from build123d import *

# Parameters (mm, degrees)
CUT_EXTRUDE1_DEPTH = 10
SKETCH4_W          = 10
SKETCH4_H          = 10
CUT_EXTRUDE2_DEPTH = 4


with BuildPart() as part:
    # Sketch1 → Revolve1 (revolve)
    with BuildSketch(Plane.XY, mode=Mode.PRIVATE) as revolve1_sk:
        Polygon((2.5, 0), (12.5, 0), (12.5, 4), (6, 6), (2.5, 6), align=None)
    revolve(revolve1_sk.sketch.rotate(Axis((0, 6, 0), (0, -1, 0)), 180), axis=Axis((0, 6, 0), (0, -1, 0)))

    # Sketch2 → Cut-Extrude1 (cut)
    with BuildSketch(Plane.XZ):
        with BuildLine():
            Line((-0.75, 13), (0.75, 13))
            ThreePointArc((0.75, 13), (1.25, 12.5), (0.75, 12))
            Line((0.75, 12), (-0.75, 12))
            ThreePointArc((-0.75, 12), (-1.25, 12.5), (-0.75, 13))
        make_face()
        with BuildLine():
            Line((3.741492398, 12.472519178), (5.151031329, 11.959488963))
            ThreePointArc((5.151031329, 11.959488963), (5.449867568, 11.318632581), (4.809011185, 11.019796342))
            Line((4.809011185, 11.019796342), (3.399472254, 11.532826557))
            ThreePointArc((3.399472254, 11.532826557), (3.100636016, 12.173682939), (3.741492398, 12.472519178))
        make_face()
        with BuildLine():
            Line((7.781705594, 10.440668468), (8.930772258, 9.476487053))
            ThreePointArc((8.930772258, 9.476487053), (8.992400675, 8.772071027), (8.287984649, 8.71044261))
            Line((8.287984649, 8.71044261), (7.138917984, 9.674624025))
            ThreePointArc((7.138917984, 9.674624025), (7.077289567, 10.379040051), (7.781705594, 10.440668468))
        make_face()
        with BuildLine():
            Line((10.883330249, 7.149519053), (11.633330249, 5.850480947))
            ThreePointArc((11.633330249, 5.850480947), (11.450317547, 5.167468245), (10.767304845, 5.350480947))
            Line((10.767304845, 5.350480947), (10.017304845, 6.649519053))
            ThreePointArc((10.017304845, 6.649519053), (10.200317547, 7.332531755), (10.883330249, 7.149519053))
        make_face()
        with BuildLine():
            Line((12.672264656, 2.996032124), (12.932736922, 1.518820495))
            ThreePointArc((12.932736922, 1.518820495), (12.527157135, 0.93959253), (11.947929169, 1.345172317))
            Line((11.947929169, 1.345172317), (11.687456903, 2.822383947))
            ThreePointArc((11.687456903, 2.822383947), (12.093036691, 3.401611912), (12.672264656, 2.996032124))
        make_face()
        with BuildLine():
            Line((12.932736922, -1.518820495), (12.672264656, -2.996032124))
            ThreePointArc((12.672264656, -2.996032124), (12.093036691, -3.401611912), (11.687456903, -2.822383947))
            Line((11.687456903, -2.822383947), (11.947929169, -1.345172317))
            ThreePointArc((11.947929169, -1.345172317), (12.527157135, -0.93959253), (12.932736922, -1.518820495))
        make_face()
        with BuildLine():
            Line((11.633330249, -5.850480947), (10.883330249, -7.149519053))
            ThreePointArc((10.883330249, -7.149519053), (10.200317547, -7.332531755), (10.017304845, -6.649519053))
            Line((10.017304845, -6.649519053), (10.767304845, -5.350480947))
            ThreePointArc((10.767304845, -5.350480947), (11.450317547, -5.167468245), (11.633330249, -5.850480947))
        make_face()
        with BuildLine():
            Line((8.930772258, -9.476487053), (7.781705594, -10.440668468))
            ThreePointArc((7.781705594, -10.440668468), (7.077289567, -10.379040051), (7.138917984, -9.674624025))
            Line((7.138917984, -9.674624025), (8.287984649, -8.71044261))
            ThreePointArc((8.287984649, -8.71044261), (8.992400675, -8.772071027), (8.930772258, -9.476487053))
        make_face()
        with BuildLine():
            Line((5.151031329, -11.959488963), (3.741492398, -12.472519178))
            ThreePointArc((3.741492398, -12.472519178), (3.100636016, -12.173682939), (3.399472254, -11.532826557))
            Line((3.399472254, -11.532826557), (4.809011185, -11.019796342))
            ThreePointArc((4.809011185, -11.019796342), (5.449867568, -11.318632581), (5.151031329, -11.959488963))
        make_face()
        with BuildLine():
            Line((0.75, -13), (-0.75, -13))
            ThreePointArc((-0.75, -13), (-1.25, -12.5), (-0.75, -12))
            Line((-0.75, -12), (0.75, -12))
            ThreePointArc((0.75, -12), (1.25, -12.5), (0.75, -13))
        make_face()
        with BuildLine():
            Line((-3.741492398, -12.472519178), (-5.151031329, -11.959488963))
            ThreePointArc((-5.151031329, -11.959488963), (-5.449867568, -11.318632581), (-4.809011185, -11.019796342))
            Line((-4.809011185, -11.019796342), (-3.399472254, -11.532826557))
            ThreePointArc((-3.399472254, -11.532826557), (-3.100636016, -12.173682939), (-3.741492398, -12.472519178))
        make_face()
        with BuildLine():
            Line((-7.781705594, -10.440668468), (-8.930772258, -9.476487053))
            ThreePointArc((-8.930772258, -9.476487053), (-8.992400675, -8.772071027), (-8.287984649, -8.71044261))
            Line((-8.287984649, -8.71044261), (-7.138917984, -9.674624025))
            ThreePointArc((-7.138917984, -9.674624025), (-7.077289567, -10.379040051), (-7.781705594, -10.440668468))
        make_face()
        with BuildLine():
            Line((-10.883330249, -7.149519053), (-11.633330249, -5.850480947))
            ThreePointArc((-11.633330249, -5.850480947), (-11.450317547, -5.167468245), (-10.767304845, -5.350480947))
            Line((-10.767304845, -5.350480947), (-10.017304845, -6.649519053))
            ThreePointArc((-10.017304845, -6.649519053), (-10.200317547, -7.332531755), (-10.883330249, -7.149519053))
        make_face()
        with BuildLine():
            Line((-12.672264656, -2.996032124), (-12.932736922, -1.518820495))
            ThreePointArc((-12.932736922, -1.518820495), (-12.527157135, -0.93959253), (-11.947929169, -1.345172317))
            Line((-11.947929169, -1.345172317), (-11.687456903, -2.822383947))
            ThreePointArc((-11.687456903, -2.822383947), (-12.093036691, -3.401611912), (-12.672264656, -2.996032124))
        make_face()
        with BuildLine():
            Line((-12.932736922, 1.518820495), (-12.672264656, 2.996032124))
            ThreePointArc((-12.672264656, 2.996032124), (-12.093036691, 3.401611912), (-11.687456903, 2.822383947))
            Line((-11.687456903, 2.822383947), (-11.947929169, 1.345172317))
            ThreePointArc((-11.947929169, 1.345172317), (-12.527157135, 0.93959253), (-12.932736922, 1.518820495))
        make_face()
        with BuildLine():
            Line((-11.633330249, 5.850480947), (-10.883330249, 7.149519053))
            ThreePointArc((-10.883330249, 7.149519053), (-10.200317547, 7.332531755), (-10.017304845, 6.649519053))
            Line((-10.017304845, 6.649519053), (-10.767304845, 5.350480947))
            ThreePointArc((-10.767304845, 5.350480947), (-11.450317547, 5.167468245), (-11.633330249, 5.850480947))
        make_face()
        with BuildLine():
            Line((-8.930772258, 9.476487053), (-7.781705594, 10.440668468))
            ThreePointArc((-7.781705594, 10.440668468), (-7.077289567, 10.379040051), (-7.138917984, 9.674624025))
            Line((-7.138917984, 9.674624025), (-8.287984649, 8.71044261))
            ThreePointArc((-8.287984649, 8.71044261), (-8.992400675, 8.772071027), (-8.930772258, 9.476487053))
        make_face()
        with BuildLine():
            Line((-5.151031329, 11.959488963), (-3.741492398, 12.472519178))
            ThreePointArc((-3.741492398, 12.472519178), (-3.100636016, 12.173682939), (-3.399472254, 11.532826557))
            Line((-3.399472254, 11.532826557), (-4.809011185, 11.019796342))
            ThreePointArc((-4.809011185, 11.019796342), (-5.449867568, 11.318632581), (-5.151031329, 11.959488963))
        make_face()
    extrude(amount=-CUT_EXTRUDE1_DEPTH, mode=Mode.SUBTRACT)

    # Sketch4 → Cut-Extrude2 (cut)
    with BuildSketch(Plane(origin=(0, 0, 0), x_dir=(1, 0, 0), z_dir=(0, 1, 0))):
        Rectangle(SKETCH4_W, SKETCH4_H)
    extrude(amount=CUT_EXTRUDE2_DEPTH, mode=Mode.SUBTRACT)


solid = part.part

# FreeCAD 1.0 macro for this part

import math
import FreeCAD as App
import Part
import Sketcher
Q = App.Units.Quantity


def add_polygon(sketch, points):
    """Adds a closed chain of lines whose ends are joined by coincident constraints."""
    first, n = sketch.GeometryCount, len(points)
    for a, b in zip(points, points[1:] + points[:1]):
        sketch.addGeometry(Part.LineSegment(App.Vector(*a, 0), App.Vector(*b, 0)), False)
    for i in range(n):
        sketch.addConstraint(Sketcher.Constraint("Coincident", first + i, 2, first + (i + 1) % n, 1))

doc = App.newDocument("Part")
body = doc.addObject("PartDesign::Body", "Body")

sketch1 = body.newObject("Sketcher::SketchObject", "Sketch")
sketch1.AttachmentSupport = (doc.getObject("XY_Plane"), [""])
sketch1.MapMode = "FlatFace"
add_polygon(sketch1, [(2.5, 0), (12.5, 0), (12.5, 4), (6, 6), (2.5, 6)])
sketch1.addConstraint([
    Sketcher.Constraint("Horizontal", 0),
    Sketcher.Constraint("Vertical", 1),
    Sketcher.Constraint("Horizontal", 3),
    Sketcher.Constraint("Vertical", 4),
    Sketcher.Constraint("PointOnObject", 0, 2, -1),
    Sketcher.Constraint("DistanceX", 0, 1, 0, 2, 10.0),
    Sketcher.Constraint("DistanceY", 1, 1, 1, 2, 4.0),
    Sketcher.Constraint("DistanceY", 4, 2, 4, 1, 6.0),
    Sketcher.Constraint("DistanceX", 3, 2, 3, 1, 3.5),
    Sketcher.Constraint("DistanceX", -1, 1, 2, 2, 6.0),
])
revolution = body.newObject("PartDesign::Revolution", "Revolution")
revolution.Profile = sketch1
revolution.ReferenceAxis = (sketch1, ["V_Axis"])
revolution.Angle = 360

sketch2 = body.newObject("Sketcher::SketchObject", "Sketch001")
sketch2.AttachmentSupport = (doc.getObject("XZ_Plane"), [""])
sketch2.MapMode = "FlatFace"
sketch2.addGeometry([
    Part.LineSegment(App.Vector(0.8, 13, 0), App.Vector(-0.8, 13, 0)),
    Part.ArcOfCircle(Part.Circle(App.Vector(-0.8, 12.5, 0), App.Vector(0, 0, 1), 0.5), math.radians(90), math.radians(270)),
    Part.LineSegment(App.Vector(-0.8, 12, 0), App.Vector(0.8, 12, 0)),
    Part.ArcOfCircle(Part.Circle(App.Vector(0.8, 12.5, 0), App.Vector(0, 0, 1), 0.5), math.radians(-90), math.radians(90)),
    Part.LineSegment(App.Vector(5.2, 12, 0), App.Vector(3.7, 12.5, 0)),
    Part.ArcOfCircle(Part.Circle(App.Vector(3.6, 12, 0), App.Vector(0, 0, 1), 0.5), math.radians(70), math.radians(250)),
    Part.LineSegment(App.Vector(3.4, 11.5, 0), App.Vector(4.8, 11, 0)),
    Part.ArcOfCircle(Part.Circle(App.Vector(5, 11.5, 0), App.Vector(0, 0, 1), 0.5), math.radians(-110), math.radians(70)),
    Part.LineSegment(App.Vector(8.9, 9.5, 0), App.Vector(7.8, 10.4, 0)),
    Part.ArcOfCircle(Part.Circle(App.Vector(7.5, 10.1, 0), App.Vector(0, 0, 1), 0.5), math.radians(50), math.radians(230)),
    Part.LineSegment(App.Vector(7.1, 9.7, 0), App.Vector(8.3, 8.7, 0)),
    Part.ArcOfCircle(Part.Circle(App.Vector(8.6, 9.1, 0), App.Vector(0, 0, 1), 0.5), math.radians(-130), math.radians(50)),
    Part.LineSegment(App.Vector(11.6, 5.9, 0), App.Vector(10.9, 7.1, 0)),
    Part.ArcOfCircle(Part.Circle(App.Vector(10.5, 6.9, 0), App.Vector(0, 0, 1), 0.5), math.radians(30), math.radians(210)),
    Part.LineSegment(App.Vector(10, 6.6, 0), App.Vector(10.8, 5.4, 0)),
    Part.ArcOfCircle(Part.Circle(App.Vector(11.2, 5.6, 0), App.Vector(0, 0, 1), 0.5), math.radians(-150), math.radians(30)),
    Part.LineSegment(App.Vector(12.9, 1.5, 0), App.Vector(12.7, 3, 0)),
    Part.ArcOfCircle(Part.Circle(App.Vector(12.2, 2.9, 0), App.Vector(0, 0, 1), 0.5), math.radians(10), math.radians(190)),
    Part.LineSegment(App.Vector(11.7, 2.8, 0), App.Vector(11.9, 1.3, 0)),
    Part.ArcOfCircle(Part.Circle(App.Vector(12.4, 1.4, 0), App.Vector(0, 0, 1), 0.5), math.radians(-170), math.radians(10)),
    Part.LineSegment(App.Vector(12.7, -3, 0), App.Vector(12.9, -1.5, 0)),
    Part.ArcOfCircle(Part.Circle(App.Vector(12.4, -1.4, 0), App.Vector(0, 0, 1), 0.5), math.radians(-10), math.radians(170)),
    Part.LineSegment(App.Vector(11.9, -1.3, 0), App.Vector(11.7, -2.8, 0)),
    Part.ArcOfCircle(Part.Circle(App.Vector(12.2, -2.9, 0), App.Vector(0, 0, 1), 0.5), math.radians(170), math.radians(350)),
    Part.LineSegment(App.Vector(10.9, -7.1, 0), App.Vector(11.6, -5.9, 0)),
    Part.ArcOfCircle(Part.Circle(App.Vector(11.2, -5.6, 0), App.Vector(0, 0, 1), 0.5), math.radians(-30), math.radians(150)),
    Part.LineSegment(App.Vector(10.8, -5.4, 0), App.Vector(10, -6.6, 0)),
    Part.ArcOfCircle(Part.Circle(App.Vector(10.5, -6.9, 0), App.Vector(0, 0, 1), 0.5), math.radians(150), math.radians(330)),
    Part.LineSegment(App.Vector(7.8, -10.4, 0), App.Vector(8.9, -9.5, 0)),
    Part.ArcOfCircle(Part.Circle(App.Vector(8.6, -9.1, 0), App.Vector(0, 0, 1), 0.5), math.radians(-50), math.radians(130)),
    Part.LineSegment(App.Vector(8.3, -8.7, 0), App.Vector(7.1, -9.7, 0)),
    Part.ArcOfCircle(Part.Circle(App.Vector(7.5, -10.1, 0), App.Vector(0, 0, 1), 0.5), math.radians(130), math.radians(310)),
    Part.LineSegment(App.Vector(3.7, -12.5, 0), App.Vector(5.2, -12, 0)),
    Part.ArcOfCircle(Part.Circle(App.Vector(5, -11.5, 0), App.Vector(0, 0, 1), 0.5), math.radians(-70), math.radians(110)),
    Part.LineSegment(App.Vector(4.8, -11, 0), App.Vector(3.4, -11.5, 0)),
    Part.ArcOfCircle(Part.Circle(App.Vector(3.6, -12, 0), App.Vector(0, 0, 1), 0.5), math.radians(110), math.radians(290)),
    Part.LineSegment(App.Vector(-0.8, -13, 0), App.Vector(0.8, -13, 0)),
    Part.ArcOfCircle(Part.Circle(App.Vector(0.8, -12.5, 0), App.Vector(0, 0, 1), 0.5), math.radians(-90), math.radians(90)),
    Part.LineSegment(App.Vector(0.8, -12, 0), App.Vector(-0.8, -12, 0)),
    Part.ArcOfCircle(Part.Circle(App.Vector(-0.8, -12.5, 0), App.Vector(0, 0, 1), 0.5), math.radians(90), math.radians(270)),
    Part.LineSegment(App.Vector(-5.2, -12, 0), App.Vector(-3.7, -12.5, 0)),
    Part.ArcOfCircle(Part.Circle(App.Vector(-3.6, -12, 0), App.Vector(0, 0, 1), 0.5), math.radians(-110), math.radians(70)),
    Part.LineSegment(App.Vector(-3.4, -11.5, 0), App.Vector(-4.8, -11, 0)),
    Part.ArcOfCircle(Part.Circle(App.Vector(-5, -11.5, 0), App.Vector(0, 0, 1), 0.5), math.radians(70), math.radians(250)),
    Part.LineSegment(App.Vector(-8.9, -9.5, 0), App.Vector(-7.8, -10.4, 0)),
    Part.ArcOfCircle(Part.Circle(App.Vector(-7.5, -10.1, 0), App.Vector(0, 0, 1), 0.5), math.radians(-130), math.radians(50)),
    Part.LineSegment(App.Vector(-7.1, -9.7, 0), App.Vector(-8.3, -8.7, 0)),
    Part.ArcOfCircle(Part.Circle(App.Vector(-8.6, -9.1, 0), App.Vector(0, 0, 1), 0.5), math.radians(50), math.radians(230)),
    Part.LineSegment(App.Vector(-11.6, -5.9, 0), App.Vector(-10.9, -7.1, 0)),
    Part.ArcOfCircle(Part.Circle(App.Vector(-10.5, -6.9, 0), App.Vector(0, 0, 1), 0.5), math.radians(-150), math.radians(30)),
    Part.LineSegment(App.Vector(-10, -6.6, 0), App.Vector(-10.8, -5.4, 0)),
    Part.ArcOfCircle(Part.Circle(App.Vector(-11.2, -5.6, 0), App.Vector(0, 0, 1), 0.5), math.radians(30), math.radians(210)),
    Part.LineSegment(App.Vector(-12.9, -1.5, 0), App.Vector(-12.7, -3, 0)),
    Part.ArcOfCircle(Part.Circle(App.Vector(-12.2, -2.9, 0), App.Vector(0, 0, 1), 0.5), math.radians(-170), math.radians(10)),
    Part.LineSegment(App.Vector(-11.7, -2.8, 0), App.Vector(-11.9, -1.3, 0)),
    Part.ArcOfCircle(Part.Circle(App.Vector(-12.4, -1.4, 0), App.Vector(0, 0, 1), 0.5), math.radians(10), math.radians(190)),
    Part.LineSegment(App.Vector(-12.7, 3, 0), App.Vector(-12.9, 1.5, 0)),
    Part.ArcOfCircle(Part.Circle(App.Vector(-12.4, 1.4, 0), App.Vector(0, 0, 1), 0.5), math.radians(170), math.radians(350)),
    Part.LineSegment(App.Vector(-11.9, 1.3, 0), App.Vector(-11.7, 2.8, 0)),
    Part.ArcOfCircle(Part.Circle(App.Vector(-12.2, 2.9, 0), App.Vector(0, 0, 1), 0.5), math.radians(-10), math.radians(170)),
    Part.LineSegment(App.Vector(-10.9, 7.1, 0), App.Vector(-11.6, 5.9, 0)),
    Part.ArcOfCircle(Part.Circle(App.Vector(-11.2, 5.6, 0), App.Vector(0, 0, 1), 0.5), math.radians(150), math.radians(330)),
    Part.LineSegment(App.Vector(-10.8, 5.4, 0), App.Vector(-10, 6.6, 0)),
    Part.ArcOfCircle(Part.Circle(App.Vector(-10.5, 6.9, 0), App.Vector(0, 0, 1), 0.5), math.radians(-30), math.radians(150)),
    Part.LineSegment(App.Vector(-7.8, 10.4, 0), App.Vector(-8.9, 9.5, 0)),
    Part.ArcOfCircle(Part.Circle(App.Vector(-8.6, 9.1, 0), App.Vector(0, 0, 1), 0.5), math.radians(130), math.radians(310)),
    Part.LineSegment(App.Vector(-8.3, 8.7, 0), App.Vector(-7.1, 9.7, 0)),
    Part.ArcOfCircle(Part.Circle(App.Vector(-7.5, 10.1, 0), App.Vector(0, 0, 1), 0.5), math.radians(-50), math.radians(130)),
    Part.LineSegment(App.Vector(-3.7, 12.5, 0), App.Vector(-5.2, 12, 0)),
    Part.ArcOfCircle(Part.Circle(App.Vector(-5, 11.5, 0), App.Vector(0, 0, 1), 0.5), math.radians(110), math.radians(290)),
    Part.LineSegment(App.Vector(-4.8, 11, 0), App.Vector(-3.4, 11.5, 0)),
    Part.ArcOfCircle(Part.Circle(App.Vector(-3.6, 12, 0), App.Vector(0, 0, 1), 0.5), math.radians(-70), math.radians(110)),
], False)
sketch2.addConstraint([
    Sketcher.Constraint("Tangent", 0, 2, 1, 1),
    Sketcher.Constraint("Tangent", 1, 2, 2, 1),
    Sketcher.Constraint("Tangent", 2, 2, 3, 1),
    Sketcher.Constraint("Tangent", 3, 2, 0, 1),
    Sketcher.Constraint("Tangent", 4, 2, 5, 1),
    Sketcher.Constraint("Tangent", 5, 2, 6, 1),
    Sketcher.Constraint("Tangent", 6, 2, 7, 1),
    Sketcher.Constraint("Tangent", 7, 2, 4, 1),
    Sketcher.Constraint("Tangent", 8, 2, 9, 1),
    Sketcher.Constraint("Tangent", 9, 2, 10, 1),
    Sketcher.Constraint("Tangent", 10, 2, 11, 1),
    Sketcher.Constraint("Tangent", 11, 2, 8, 1),
    Sketcher.Constraint("Tangent", 12, 2, 13, 1),
    Sketcher.Constraint("Tangent", 13, 2, 14, 1),
    Sketcher.Constraint("Tangent", 14, 2, 15, 1),
    Sketcher.Constraint("Tangent", 15, 2, 12, 1),
    Sketcher.Constraint("Tangent", 16, 2, 17, 1),
    Sketcher.Constraint("Tangent", 17, 2, 18, 1),
    Sketcher.Constraint("Tangent", 18, 2, 19, 1),
    Sketcher.Constraint("Tangent", 19, 2, 16, 1),
    Sketcher.Constraint("Tangent", 20, 2, 21, 1),
    Sketcher.Constraint("Tangent", 21, 2, 22, 1),
    Sketcher.Constraint("Tangent", 22, 2, 23, 1),
    Sketcher.Constraint("Tangent", 23, 2, 20, 1),
    Sketcher.Constraint("Tangent", 24, 2, 25, 1),
    Sketcher.Constraint("Tangent", 25, 2, 26, 1),
    Sketcher.Constraint("Tangent", 26, 2, 27, 1),
    Sketcher.Constraint("Tangent", 27, 2, 24, 1),
    Sketcher.Constraint("Tangent", 28, 2, 29, 1),
    Sketcher.Constraint("Tangent", 29, 2, 30, 1),
    Sketcher.Constraint("Tangent", 30, 2, 31, 1),
    Sketcher.Constraint("Tangent", 31, 2, 28, 1),
    Sketcher.Constraint("Tangent", 32, 2, 33, 1),
    Sketcher.Constraint("Tangent", 33, 2, 34, 1),
    Sketcher.Constraint("Tangent", 34, 2, 35, 1),
    Sketcher.Constraint("Tangent", 35, 2, 32, 1),
    Sketcher.Constraint("Tangent", 36, 2, 37, 1),
    Sketcher.Constraint("Tangent", 37, 2, 38, 1),
    Sketcher.Constraint("Tangent", 38, 2, 39, 1),
    Sketcher.Constraint("Tangent", 39, 2, 36, 1),
    Sketcher.Constraint("Tangent", 40, 2, 41, 1),
    Sketcher.Constraint("Tangent", 41, 2, 42, 1),
    Sketcher.Constraint("Tangent", 42, 2, 43, 1),
    Sketcher.Constraint("Tangent", 43, 2, 40, 1),
    Sketcher.Constraint("Tangent", 44, 2, 45, 1),
    Sketcher.Constraint("Tangent", 45, 2, 46, 1),
    Sketcher.Constraint("Tangent", 46, 2, 47, 1),
    Sketcher.Constraint("Tangent", 47, 2, 44, 1),
    Sketcher.Constraint("Tangent", 48, 2, 49, 1),
    Sketcher.Constraint("Tangent", 49, 2, 50, 1),
    Sketcher.Constraint("Tangent", 50, 2, 51, 1),
    Sketcher.Constraint("Tangent", 51, 2, 48, 1),
    Sketcher.Constraint("Tangent", 52, 2, 53, 1),
    Sketcher.Constraint("Tangent", 53, 2, 54, 1),
    Sketcher.Constraint("Tangent", 54, 2, 55, 1),
    Sketcher.Constraint("Tangent", 55, 2, 52, 1),
    Sketcher.Constraint("Tangent", 56, 2, 57, 1),
    Sketcher.Constraint("Tangent", 57, 2, 58, 1),
    Sketcher.Constraint("Tangent", 58, 2, 59, 1),
    Sketcher.Constraint("Tangent", 59, 2, 56, 1),
    Sketcher.Constraint("Tangent", 60, 2, 61, 1),
    Sketcher.Constraint("Tangent", 61, 2, 62, 1),
    Sketcher.Constraint("Tangent", 62, 2, 63, 1),
    Sketcher.Constraint("Tangent", 63, 2, 60, 1),
    Sketcher.Constraint("Tangent", 64, 2, 65, 1),
    Sketcher.Constraint("Tangent", 65, 2, 66, 1),
    Sketcher.Constraint("Tangent", 66, 2, 67, 1),
    Sketcher.Constraint("Tangent", 67, 2, 64, 1),
    Sketcher.Constraint("Tangent", 68, 2, 69, 1),
    Sketcher.Constraint("Tangent", 69, 2, 70, 1),
    Sketcher.Constraint("Tangent", 70, 2, 71, 1),
    Sketcher.Constraint("Tangent", 71, 2, 68, 1),
    Sketcher.Constraint("Horizontal", 0),
    Sketcher.Constraint("Horizontal", 2),
    Sketcher.Constraint("Horizontal", 36),
    Sketcher.Constraint("Horizontal", 38),
    Sketcher.Constraint("Equal", 3, 5),
    Sketcher.Constraint("Equal", 5, 7),
    Sketcher.Constraint("Equal", 7, 9),
    Sketcher.Constraint("Equal", 9, 11),
    Sketcher.Constraint("Equal", 11, 13),
    Sketcher.Constraint("Equal", 13, 15),
    Sketcher.Constraint("Equal", 15, 17),
    Sketcher.Constraint("Equal", 17, 19),
    Sketcher.Constraint("Equal", 19, 21),
    Sketcher.Constraint("Equal", 21, 23),
    Sketcher.Constraint("Equal", 23, 25),
    Sketcher.Constraint("Equal", 25, 27),
    Sketcher.Constraint("Equal", 27, 29),
    Sketcher.Constraint("Equal", 29, 31),
    Sketcher.Constraint("Equal", 31, 33),
    Sketcher.Constraint("Equal", 33, 35),
    Sketcher.Constraint("Equal", 35, 37),
    Sketcher.Constraint("Equal", 39, 41),
    Sketcher.Constraint("Equal", 41, 43),
    Sketcher.Constraint("Equal", 43, 45),
    Sketcher.Constraint("Equal", 45, 47),
    Sketcher.Constraint("Equal", 47, 49),
    Sketcher.Constraint("Equal", 49, 51),
    Sketcher.Constraint("Equal", 51, 53),
    Sketcher.Constraint("Equal", 53, 55),
    Sketcher.Constraint("Equal", 55, 57),
    Sketcher.Constraint("Equal", 57, 59),
    Sketcher.Constraint("Equal", 59, 61),
    Sketcher.Constraint("Equal", 61, 63),
    Sketcher.Constraint("Equal", 63, 65),
    Sketcher.Constraint("Equal", 65, 67),
    Sketcher.Constraint("Equal", 67, 69),
    Sketcher.Constraint("Equal", 69, 71),
    Sketcher.Constraint("Symmetric", 1, 3, 37, 3, -1, 1),
    Sketcher.Constraint("Symmetric", 5, 3, 41, 3, -1, 1),
    Sketcher.Constraint("Symmetric", 7, 3, 43, 3, -1, 1),
    Sketcher.Constraint("Symmetric", 9, 3, 45, 3, -1, 1),
    Sketcher.Constraint("Symmetric", 11, 3, 47, 3, -1, 1),
    Sketcher.Constraint("Symmetric", 13, 3, 49, 3, -1, 1),
    Sketcher.Constraint("Symmetric", 15, 3, 51, 3, -1, 1),
    Sketcher.Constraint("Symmetric", 17, 3, 53, 3, -1, 1),
    Sketcher.Constraint("Symmetric", 19, 3, 55, 3, -1, 1),
    Sketcher.Constraint("Symmetric", 21, 3, 57, 3, -1, 1),
    Sketcher.Constraint("Symmetric", 23, 3, 59, 3, -1, 1),
    Sketcher.Constraint("Symmetric", 25, 3, 61, 3, -1, 1),
    Sketcher.Constraint("Symmetric", 27, 3, 63, 3, -1, 1),
    Sketcher.Constraint("Symmetric", 29, 3, 65, 3, -1, 1),
    Sketcher.Constraint("Symmetric", 31, 3, 67, 3, -1, 1),
    Sketcher.Constraint("Symmetric", 33, 3, 69, 3, -1, 1),
    Sketcher.Constraint("Symmetric", 35, 3, 71, 3, -1, 1),
    Sketcher.Constraint("Symmetric", 35, 3, 41, 3, -2),
    Sketcher.Constraint("Symmetric", 33, 3, 43, 3, -2),
    Sketcher.Constraint("Symmetric", 31, 3, 45, 3, -2),
    Sketcher.Constraint("Symmetric", 29, 3, 47, 3, -2),
    Sketcher.Constraint("Symmetric", 27, 3, 49, 3, -2),
    Sketcher.Constraint("Symmetric", 25, 3, 51, 3, -2),
    Sketcher.Constraint("Symmetric", 23, 3, 53, 3, -2),
    Sketcher.Constraint("Symmetric", 21, 3, 55, 3, -2),
    Sketcher.Constraint("Vertical", 3, 3, 37, 3),
    Sketcher.Constraint("Vertical", 1, 3, 39, 3),
    Sketcher.Constraint("Equal", 6, 8),
    Sketcher.Constraint("Equal", 10, 12),
    Sketcher.Constraint("Equal", 14, 16),
    Sketcher.Constraint("Radius", 1, 0.5),
    Sketcher.Constraint("Angle", 4, Q("160 deg")),
    Sketcher.Constraint("Angle", 8, Q("140 deg")),
    Sketcher.Constraint("Angle", 12, Q("120 deg")),
    Sketcher.Constraint("Angle", 16, Q("100 deg")),
    Sketcher.Constraint("DistanceX", 0, 2, 0, 1, 1.5),
    Sketcher.Constraint("DistanceY", -1, 1, 0, 2, 13.0),
    Sketcher.Constraint("Distance", 4, 1.5),
    Sketcher.Constraint("DistanceX", -1, 1, 7, 3, 4.980021),
    Sketcher.Constraint("DistanceX", -1, 1, 9, 3, 7.460312),
    Sketcher.Constraint("DistanceY", -1, 1, 13, 3, 6.899519),
    Sketcher.Constraint("DistanceX", -1, 1, 17, 3, 12.179861),
    Sketcher.Constraint("DistanceY", -1, 1, 17, 3, 2.909208),
    Sketcher.Constraint("DistanceY", -1, 1, 4, 2, 12.472519),
    Sketcher.Constraint("DistanceY", -1, 1, 8, 2, 10.440668),
    Sketcher.Constraint("DistanceX", -1, 1, 12, 2, 10.88333),
])
pocket1 = body.newObject("PartDesign::Pocket", "Pocket")
pocket1.Profile = sketch2
pocket1.Length = 10

sketch3 = body.newObject("Sketcher::SketchObject", "Sketch002")
sketch3.AttachmentSupport = (doc.getObject("XZ_Plane"), [""])
sketch3.MapMode = "FlatFace"
add_polygon(sketch3, [(-5, -5), (-5, 5), (5, 5), (5, -5)])
sketch3.addConstraint([
    Sketcher.Constraint("Vertical", 0),
    Sketcher.Constraint("Horizontal", 1),
    Sketcher.Constraint("Vertical", 2),
    Sketcher.Constraint("Horizontal", 3),
    Sketcher.Constraint("Symmetric", 0, 2, 2, 2, -1, 1),
    Sketcher.Constraint("Equal", 3, 0),
    Sketcher.Constraint("DistanceX", 1, 1, 1, 2, 10.0),
])
pocket2 = body.newObject("PartDesign::Pocket", "Pocket001")
pocket2.Profile = sketch3
pocket2.Length = 4

doc.recompute()
